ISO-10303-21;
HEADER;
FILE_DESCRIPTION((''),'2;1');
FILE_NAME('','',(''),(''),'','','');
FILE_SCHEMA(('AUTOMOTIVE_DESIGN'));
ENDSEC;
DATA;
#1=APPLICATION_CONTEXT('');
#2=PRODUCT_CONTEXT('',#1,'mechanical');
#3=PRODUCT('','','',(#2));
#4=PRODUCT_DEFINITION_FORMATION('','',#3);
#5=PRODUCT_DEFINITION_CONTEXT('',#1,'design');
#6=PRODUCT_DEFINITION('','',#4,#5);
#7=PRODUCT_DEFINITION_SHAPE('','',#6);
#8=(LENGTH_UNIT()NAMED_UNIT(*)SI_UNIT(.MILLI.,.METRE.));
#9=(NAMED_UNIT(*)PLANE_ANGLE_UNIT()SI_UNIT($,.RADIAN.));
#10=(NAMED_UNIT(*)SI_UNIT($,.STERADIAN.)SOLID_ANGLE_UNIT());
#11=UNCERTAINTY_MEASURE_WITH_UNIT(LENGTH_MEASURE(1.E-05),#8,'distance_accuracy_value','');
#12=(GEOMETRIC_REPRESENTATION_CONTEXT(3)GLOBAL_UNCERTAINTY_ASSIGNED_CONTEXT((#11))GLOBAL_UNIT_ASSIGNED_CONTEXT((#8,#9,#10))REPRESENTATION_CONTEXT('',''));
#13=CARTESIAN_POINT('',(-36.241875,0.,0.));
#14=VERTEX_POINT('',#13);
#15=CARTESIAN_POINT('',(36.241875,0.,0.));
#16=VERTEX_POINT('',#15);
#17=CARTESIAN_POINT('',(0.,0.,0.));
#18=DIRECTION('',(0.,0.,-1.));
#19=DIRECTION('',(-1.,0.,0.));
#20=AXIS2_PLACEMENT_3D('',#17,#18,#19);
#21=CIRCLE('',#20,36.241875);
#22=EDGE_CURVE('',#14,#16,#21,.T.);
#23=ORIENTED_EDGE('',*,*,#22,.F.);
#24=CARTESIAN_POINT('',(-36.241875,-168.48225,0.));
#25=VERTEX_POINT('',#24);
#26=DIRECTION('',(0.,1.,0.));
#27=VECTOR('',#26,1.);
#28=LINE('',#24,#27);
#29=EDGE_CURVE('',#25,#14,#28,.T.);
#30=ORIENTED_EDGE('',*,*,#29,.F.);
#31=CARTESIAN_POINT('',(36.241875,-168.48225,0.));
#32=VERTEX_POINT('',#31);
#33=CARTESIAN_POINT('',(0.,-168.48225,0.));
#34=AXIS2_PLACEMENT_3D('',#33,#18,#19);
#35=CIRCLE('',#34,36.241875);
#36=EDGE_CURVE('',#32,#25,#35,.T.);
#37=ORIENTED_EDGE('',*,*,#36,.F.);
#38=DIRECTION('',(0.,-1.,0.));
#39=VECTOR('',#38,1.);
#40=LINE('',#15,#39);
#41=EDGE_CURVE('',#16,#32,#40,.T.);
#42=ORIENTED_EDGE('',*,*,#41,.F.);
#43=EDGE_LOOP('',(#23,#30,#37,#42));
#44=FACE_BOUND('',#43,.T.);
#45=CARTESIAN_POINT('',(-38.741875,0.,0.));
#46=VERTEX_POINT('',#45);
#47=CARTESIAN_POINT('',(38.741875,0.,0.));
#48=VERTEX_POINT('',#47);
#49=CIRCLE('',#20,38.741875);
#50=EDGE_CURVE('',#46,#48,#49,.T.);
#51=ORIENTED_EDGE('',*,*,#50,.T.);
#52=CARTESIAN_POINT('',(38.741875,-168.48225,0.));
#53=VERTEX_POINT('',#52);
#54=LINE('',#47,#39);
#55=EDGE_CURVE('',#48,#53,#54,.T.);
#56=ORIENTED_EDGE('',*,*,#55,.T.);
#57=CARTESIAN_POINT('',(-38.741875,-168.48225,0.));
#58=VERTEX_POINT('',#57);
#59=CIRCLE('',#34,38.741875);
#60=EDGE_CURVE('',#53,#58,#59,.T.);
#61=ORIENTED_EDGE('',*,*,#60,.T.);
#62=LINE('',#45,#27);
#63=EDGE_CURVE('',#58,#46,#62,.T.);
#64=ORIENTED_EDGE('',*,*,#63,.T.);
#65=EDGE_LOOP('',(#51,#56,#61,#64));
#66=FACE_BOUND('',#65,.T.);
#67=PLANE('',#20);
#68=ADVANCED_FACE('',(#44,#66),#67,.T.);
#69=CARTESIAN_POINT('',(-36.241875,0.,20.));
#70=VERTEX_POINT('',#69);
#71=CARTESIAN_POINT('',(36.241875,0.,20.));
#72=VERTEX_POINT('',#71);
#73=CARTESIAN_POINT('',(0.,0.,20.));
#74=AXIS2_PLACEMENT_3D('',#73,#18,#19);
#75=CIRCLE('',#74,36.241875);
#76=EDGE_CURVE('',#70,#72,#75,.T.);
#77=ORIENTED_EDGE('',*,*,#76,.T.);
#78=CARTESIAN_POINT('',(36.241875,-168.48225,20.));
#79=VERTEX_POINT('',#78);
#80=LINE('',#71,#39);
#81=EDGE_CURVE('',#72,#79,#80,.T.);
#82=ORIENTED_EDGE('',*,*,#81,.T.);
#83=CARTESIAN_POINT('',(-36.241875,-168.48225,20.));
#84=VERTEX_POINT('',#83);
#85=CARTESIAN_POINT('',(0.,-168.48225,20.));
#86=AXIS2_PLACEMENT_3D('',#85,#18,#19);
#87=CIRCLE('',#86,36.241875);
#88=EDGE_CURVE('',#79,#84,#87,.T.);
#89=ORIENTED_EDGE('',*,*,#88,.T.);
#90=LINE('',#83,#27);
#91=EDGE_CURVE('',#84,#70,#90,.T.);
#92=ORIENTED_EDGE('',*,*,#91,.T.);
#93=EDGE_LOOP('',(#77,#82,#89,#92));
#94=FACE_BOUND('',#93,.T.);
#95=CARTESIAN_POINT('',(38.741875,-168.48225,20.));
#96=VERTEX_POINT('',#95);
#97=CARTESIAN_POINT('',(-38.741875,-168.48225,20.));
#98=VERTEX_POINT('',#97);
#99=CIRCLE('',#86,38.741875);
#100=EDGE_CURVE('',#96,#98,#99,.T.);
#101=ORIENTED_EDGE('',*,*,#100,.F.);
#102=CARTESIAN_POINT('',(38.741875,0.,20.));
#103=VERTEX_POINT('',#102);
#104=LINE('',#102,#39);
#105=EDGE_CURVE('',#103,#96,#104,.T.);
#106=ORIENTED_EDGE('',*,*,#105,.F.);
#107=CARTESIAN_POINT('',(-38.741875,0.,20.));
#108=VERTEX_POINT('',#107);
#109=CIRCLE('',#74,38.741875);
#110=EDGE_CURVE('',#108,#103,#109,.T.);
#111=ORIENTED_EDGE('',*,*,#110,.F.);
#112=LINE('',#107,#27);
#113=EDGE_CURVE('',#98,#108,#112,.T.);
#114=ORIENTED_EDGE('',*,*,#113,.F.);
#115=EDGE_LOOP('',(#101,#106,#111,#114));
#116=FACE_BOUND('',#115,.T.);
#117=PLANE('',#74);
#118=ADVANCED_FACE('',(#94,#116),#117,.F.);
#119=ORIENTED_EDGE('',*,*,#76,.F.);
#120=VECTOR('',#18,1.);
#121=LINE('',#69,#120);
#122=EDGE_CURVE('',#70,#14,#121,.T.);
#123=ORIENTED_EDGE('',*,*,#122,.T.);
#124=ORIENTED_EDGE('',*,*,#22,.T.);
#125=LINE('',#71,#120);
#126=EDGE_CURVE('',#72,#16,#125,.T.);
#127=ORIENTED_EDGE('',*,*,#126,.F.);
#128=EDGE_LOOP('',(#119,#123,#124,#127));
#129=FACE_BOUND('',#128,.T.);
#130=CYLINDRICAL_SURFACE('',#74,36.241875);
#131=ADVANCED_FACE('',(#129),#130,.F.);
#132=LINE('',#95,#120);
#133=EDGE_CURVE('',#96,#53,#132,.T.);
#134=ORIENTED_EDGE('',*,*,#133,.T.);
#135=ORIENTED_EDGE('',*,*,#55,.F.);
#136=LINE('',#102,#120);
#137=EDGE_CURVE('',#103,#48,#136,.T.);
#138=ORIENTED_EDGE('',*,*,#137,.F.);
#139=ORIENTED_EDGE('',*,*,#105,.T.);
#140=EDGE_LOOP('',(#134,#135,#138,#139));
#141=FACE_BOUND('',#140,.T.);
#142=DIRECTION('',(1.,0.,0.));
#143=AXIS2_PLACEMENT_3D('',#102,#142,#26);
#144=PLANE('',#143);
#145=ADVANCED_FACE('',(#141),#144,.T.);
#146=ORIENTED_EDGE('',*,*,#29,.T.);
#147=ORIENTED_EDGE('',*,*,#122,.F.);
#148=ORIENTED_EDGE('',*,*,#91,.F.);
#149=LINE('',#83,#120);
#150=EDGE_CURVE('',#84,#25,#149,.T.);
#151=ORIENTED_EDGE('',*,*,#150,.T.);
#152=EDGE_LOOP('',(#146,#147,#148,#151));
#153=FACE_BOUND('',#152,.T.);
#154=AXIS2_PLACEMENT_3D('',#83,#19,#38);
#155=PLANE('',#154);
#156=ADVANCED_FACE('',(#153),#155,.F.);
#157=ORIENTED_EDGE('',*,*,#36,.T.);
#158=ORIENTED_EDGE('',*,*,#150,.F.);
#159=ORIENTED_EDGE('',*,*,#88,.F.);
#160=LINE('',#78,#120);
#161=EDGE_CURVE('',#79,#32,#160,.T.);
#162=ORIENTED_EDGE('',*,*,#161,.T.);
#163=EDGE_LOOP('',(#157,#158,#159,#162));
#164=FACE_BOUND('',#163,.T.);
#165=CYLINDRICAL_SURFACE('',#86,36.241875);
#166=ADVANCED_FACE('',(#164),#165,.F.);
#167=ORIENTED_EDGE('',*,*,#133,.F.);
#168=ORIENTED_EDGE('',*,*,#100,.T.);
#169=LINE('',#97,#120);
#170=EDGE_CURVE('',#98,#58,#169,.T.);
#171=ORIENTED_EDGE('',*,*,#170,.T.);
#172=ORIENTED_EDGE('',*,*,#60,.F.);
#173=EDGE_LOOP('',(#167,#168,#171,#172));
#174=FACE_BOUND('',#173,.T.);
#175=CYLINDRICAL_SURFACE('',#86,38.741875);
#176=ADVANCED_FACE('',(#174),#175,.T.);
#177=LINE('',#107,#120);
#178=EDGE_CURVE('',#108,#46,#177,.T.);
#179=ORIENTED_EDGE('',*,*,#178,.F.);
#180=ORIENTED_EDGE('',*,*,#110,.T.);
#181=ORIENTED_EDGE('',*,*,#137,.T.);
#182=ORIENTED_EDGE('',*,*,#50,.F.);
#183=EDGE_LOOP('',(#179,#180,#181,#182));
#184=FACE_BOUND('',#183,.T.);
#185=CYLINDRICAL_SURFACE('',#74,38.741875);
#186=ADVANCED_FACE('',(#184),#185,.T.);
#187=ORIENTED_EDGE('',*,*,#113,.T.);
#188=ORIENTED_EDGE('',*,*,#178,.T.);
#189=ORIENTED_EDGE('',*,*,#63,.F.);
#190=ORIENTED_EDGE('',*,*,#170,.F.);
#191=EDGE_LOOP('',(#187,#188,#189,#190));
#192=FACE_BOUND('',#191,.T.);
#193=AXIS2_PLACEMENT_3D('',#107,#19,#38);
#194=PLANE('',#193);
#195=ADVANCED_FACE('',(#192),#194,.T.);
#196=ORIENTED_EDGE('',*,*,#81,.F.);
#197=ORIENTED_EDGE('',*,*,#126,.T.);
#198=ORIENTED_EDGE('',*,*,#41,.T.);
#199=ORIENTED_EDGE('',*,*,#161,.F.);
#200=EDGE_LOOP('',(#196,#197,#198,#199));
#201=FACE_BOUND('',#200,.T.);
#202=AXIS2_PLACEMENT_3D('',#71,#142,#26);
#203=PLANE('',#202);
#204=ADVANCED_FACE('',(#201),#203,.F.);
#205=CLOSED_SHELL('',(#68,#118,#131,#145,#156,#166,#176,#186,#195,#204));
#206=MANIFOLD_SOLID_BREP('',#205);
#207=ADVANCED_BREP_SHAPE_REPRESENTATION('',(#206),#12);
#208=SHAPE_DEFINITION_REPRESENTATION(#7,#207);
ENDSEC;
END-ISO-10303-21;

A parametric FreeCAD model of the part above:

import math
import FreeCAD as App
import Part
import Sketcher
from FreeCAD import Vector
Q = App.Units.Quantity

doc = App.newDocument("Part")
params = doc.addObject("Spreadsheet::Sheet", "Params")
for row, (alias, value) in enumerate([
    ("pad1_length", "20 mm"),
], start=1):
    params.set(f"A{row}", alias)
    params.set(f"B{row}", "=" + value)
    params.setAlias(f"B{row}", alias)

body = doc.addObject("PartDesign::Body", "Body")

sketch1 = body.newObject("Sketcher::SketchObject", "Sketch")
sketch1.AttachmentSupport = (doc.getObject("XY_Plane"), [""])
sketch1.MapMode = "FlatFace"
sketch1.addGeometry(Part.LineSegment(Vector(-38.741875, 0, 0), Vector(-38.741875, -168.48225, 0)), False)
sketch1.addGeometry(Part.ArcOfCircle(Part.Circle(Vector(0, -168.48225, 0), Vector(0, 0, 1), 38.741875), math.radians(180), math.radians(360)), False)
sketch1.addGeometry(Part.LineSegment(Vector(38.741875, -168.48225, 0), Vector(38.741875, 0, 0)), False)
sketch1.addGeometry(Part.ArcOfCircle(Part.Circle(Vector(0, 0, 0), Vector(0, 0, 1), 38.741875), math.radians(0), math.radians(180)), False)
sketch1.addGeometry(Part.LineSegment(Vector(-36.241875, -168.48225, 0), Vector(-36.241875, 0, 0)), False)
sketch1.addGeometry(Part.ArcOfCircle(Part.Circle(Vector(0, 0, 0), Vector(0, 0, 1), 36.241875), math.radians(0), math.radians(180)), False)
sketch1.addGeometry(Part.LineSegment(Vector(36.241875, 0, 0), Vector(36.241875, -168.48225, 0)), False)
sketch1.addGeometry(Part.ArcOfCircle(Part.Circle(Vector(0, -168.48225, 0), Vector(0, 0, 1), 36.241875), math.radians(180), math.radians(360)), False)
sketch1.addConstraint(Sketcher.Constraint("Tangent", 0, 2, 1, 1))
sketch1.addConstraint(Sketcher.Constraint("Tangent", 1, 2, 2, 1))
sketch1.addConstraint(Sketcher.Constraint("Tangent", 2, 2, 3, 1))
sketch1.addConstraint(Sketcher.Constraint("Tangent", 3, 2, 0, 1))
sketch1.addConstraint(Sketcher.Constraint("Tangent", 4, 2, 5, 2))
sketch1.addConstraint(Sketcher.Constraint("Tangent", 5, 1, 6, 1))
sketch1.addConstraint(Sketcher.Constraint("Tangent", 6, 2, 7, 2))
sketch1.addConstraint(Sketcher.Constraint("Tangent", 7, 1, 4, 1))
sketch1.addConstraint(Sketcher.Constraint("Vertical", 0))
sketch1.addConstraint(Sketcher.Constraint("Vertical", 2))
sketch1.addConstraint(Sketcher.Constraint("Vertical", 4))
sketch1.addConstraint(Sketcher.Constraint("Vertical", 6))
sketch1.addConstraint(Sketcher.Constraint("Coincident", 3, 3, -1, 1))
sketch1.addConstraint(Sketcher.Constraint("Coincident", 5, 3, -1, 1))
sketch1.addConstraint(Sketcher.Constraint("Horizontal", 7, 3, 0, 2))
sketch1.addConstraint(Sketcher.Constraint("DistanceX", 3, 2, 4, 2, Q("2.5 mm")))
sketch1.addConstraint(Sketcher.Constraint("Radius", 1, Q("38.741875 mm")))
sketch1.addConstraint(Sketcher.Constraint("DistanceY", 0, 2, 0, 1, Q("168.48225 mm")))
pad1 = body.newObject("PartDesign::Pad", "Pad")
pad1.Profile = sketch1
pad1.setExpression("Length", "Params.pad1_length")

doc.recompute()
